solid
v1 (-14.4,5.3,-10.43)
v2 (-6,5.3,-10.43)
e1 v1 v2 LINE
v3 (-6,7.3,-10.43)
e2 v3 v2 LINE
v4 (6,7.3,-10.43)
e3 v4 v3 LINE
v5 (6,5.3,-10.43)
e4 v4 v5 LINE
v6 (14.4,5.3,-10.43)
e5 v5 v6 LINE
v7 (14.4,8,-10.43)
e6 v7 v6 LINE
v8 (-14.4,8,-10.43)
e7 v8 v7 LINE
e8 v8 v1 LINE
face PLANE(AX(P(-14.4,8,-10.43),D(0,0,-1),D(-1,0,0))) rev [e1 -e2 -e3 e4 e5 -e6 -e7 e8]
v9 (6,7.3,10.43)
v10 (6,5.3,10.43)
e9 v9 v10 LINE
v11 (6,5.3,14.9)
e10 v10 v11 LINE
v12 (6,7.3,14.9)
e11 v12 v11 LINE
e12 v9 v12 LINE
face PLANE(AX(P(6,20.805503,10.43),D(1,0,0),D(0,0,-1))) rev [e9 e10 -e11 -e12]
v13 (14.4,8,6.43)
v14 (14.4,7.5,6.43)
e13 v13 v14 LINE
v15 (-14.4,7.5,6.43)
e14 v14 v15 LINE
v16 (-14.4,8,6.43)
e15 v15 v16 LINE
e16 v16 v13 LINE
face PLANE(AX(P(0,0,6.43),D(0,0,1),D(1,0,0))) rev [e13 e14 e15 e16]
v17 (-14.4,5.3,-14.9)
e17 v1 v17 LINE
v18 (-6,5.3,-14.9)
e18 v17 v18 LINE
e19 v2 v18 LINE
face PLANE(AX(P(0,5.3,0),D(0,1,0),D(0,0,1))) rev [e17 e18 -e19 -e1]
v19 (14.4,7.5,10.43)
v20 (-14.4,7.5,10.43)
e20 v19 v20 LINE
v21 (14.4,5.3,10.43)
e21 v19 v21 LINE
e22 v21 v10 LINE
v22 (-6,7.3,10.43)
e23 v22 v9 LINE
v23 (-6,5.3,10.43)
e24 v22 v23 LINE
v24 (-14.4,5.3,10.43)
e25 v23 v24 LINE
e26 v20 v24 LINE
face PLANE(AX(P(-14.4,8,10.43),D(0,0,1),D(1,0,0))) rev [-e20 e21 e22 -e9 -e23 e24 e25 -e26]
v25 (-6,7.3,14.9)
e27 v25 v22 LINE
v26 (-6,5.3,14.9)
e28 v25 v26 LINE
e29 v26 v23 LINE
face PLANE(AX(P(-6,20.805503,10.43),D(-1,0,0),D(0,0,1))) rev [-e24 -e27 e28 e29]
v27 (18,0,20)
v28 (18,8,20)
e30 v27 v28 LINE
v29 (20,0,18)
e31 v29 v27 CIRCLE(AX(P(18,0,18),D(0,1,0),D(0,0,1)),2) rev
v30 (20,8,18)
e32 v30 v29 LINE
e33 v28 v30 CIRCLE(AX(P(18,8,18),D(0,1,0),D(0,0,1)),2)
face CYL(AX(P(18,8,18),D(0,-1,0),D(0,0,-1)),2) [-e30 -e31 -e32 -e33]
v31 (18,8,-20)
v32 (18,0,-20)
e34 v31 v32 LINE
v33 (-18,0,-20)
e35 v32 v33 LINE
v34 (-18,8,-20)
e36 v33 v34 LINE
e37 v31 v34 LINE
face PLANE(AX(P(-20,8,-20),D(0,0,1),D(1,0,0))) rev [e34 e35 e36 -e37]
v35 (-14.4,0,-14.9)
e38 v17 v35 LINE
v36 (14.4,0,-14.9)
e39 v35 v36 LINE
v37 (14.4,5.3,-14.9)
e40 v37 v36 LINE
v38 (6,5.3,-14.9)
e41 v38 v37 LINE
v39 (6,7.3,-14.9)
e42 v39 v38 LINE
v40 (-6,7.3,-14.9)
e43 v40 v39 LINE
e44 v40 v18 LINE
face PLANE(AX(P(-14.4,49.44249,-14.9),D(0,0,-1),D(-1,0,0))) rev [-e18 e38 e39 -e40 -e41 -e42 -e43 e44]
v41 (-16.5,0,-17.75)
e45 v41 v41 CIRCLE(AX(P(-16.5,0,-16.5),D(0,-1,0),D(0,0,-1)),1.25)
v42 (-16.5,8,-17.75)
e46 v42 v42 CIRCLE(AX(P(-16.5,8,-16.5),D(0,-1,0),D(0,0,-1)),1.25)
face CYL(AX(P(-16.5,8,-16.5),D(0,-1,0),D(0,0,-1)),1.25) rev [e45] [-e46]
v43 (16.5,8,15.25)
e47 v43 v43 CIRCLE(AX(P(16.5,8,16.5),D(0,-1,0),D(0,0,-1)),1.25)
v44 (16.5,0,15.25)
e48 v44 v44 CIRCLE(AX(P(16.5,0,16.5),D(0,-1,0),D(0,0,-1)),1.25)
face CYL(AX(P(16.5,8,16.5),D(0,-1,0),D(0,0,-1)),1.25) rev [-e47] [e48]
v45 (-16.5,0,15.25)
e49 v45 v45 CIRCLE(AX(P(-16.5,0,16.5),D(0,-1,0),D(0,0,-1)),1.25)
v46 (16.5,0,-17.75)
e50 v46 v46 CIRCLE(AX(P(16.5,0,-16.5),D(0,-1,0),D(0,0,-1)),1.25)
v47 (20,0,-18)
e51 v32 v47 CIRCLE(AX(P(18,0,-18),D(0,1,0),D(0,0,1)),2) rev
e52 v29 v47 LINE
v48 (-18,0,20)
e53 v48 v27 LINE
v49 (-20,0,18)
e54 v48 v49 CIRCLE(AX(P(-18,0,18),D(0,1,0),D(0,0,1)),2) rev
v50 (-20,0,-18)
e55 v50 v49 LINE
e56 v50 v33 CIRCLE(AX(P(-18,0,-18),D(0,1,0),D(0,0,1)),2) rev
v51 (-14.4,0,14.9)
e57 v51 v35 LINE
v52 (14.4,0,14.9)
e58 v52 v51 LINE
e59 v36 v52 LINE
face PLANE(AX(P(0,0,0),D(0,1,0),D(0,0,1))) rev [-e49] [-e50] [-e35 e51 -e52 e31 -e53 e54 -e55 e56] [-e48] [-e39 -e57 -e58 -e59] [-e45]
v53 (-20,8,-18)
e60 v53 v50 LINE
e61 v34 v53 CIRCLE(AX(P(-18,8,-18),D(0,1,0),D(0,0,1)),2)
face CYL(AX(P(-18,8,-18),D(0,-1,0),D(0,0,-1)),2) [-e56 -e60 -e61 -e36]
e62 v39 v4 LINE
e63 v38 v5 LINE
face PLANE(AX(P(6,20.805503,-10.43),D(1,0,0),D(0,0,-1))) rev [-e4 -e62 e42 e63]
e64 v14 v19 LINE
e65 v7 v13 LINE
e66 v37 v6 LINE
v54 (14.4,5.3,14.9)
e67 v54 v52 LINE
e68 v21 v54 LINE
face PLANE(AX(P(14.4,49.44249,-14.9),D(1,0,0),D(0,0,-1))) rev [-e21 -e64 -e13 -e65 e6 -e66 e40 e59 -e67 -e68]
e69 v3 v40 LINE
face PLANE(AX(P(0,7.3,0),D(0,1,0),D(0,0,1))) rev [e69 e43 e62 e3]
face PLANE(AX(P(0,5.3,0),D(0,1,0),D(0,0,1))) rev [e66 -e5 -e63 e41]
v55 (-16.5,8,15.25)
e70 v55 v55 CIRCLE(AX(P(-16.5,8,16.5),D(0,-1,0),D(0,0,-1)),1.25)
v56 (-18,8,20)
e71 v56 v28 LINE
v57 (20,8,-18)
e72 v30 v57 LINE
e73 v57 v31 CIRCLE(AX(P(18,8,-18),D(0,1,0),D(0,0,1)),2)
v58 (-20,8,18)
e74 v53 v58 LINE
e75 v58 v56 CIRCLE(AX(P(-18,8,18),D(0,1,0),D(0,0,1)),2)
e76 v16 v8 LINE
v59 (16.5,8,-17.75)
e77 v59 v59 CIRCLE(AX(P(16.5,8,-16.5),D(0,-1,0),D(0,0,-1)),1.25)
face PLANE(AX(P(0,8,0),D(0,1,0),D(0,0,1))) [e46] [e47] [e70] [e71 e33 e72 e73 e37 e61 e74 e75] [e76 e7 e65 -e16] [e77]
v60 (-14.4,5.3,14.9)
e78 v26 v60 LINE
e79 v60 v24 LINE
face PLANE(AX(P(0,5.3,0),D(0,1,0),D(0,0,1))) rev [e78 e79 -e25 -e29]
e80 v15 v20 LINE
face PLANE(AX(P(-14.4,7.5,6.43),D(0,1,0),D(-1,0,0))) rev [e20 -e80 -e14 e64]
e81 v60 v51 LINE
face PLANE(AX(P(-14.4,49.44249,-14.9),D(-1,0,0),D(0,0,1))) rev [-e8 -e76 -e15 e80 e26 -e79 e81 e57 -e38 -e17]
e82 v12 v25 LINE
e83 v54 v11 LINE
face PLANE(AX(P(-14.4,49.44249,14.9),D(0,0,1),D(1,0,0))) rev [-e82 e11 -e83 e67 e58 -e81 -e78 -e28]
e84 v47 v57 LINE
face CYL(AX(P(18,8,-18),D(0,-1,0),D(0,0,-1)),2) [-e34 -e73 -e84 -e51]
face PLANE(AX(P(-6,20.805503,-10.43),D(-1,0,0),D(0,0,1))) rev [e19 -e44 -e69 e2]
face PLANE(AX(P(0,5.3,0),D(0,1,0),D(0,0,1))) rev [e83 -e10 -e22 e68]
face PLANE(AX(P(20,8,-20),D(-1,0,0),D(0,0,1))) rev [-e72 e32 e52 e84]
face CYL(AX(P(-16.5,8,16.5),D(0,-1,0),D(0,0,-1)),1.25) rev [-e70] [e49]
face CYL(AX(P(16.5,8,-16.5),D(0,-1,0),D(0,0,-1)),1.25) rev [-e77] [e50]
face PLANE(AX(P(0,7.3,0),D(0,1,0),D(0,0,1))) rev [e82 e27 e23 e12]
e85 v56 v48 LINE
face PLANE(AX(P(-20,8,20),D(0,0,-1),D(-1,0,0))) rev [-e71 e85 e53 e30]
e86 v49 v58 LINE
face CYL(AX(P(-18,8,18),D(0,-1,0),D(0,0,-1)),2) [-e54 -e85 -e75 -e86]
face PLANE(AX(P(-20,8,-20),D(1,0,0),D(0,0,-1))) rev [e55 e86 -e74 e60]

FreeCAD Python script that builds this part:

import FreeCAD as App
import Part
import Sketcher
from FreeCAD import Vector
Q = App.Units.Quantity


def edges_at(feature, points):
    """Names of the edges that pass closest to the given points."""
    edges = feature.Shape.Edges
    near = lambda p: min(range(len(edges)), key=lambda i: edges[i].distToShape(Part.Vertex(*p))[0])
    return sorted({f"Edge{near(p) + 1}" for p in points})

doc = App.newDocument("Part")
body = doc.addObject("PartDesign::Body", "Body")

sketch1 = doc.addObject("Sketcher::SketchObject", "Sketch")
body.addObject(sketch1)
sketch1.AttachmentSupport = (doc.XZ_Plane, [""])
sketch1.MapMode = "FlatFace"
sketch1.addGeometry(Part.LineSegment(Vector(-20, -20, 0), Vector(-20, 20, 0)), False)
sketch1.addGeometry(Part.LineSegment(Vector(-20, 20, 0), Vector(20, 20, 0)), False)
sketch1.addGeometry(Part.LineSegment(Vector(20, 20, 0), Vector(20, -20, 0)), False)
sketch1.addGeometry(Part.LineSegment(Vector(20, -20, 0), Vector(-20, -20, 0)), False)
sketch1.addConstraint(Sketcher.Constraint("Coincident", 0, 2, 1, 1))
sketch1.addConstraint(Sketcher.Constraint("Coincident", 1, 2, 2, 1))
sketch1.addConstraint(Sketcher.Constraint("Coincident", 2, 2, 3, 1))
sketch1.addConstraint(Sketcher.Constraint("Coincident", 3, 2, 0, 1))
sketch1.addConstraint(Sketcher.Constraint("Vertical", 0))
sketch1.addConstraint(Sketcher.Constraint("Horizontal", 1))
sketch1.addConstraint(Sketcher.Constraint("Vertical", 2))
sketch1.addConstraint(Sketcher.Constraint("Horizontal", 3))
sketch1.addConstraint(Sketcher.Constraint("Symmetric", 0, 2, 2, 2, -1, 1))
sketch1.addConstraint(Sketcher.Constraint("Equal", 3, 0))
sketch1.addConstraint(Sketcher.Constraint("DistanceX", 1, 1, 1, 2, Q("40 mm")))
pad1 = doc.addObject("PartDesign::Pad", "Pad")
body.addObject(pad1)
pad1.Profile = sketch1
pad1.Length = 8
pad1.Reversed = True

sketch2 = doc.addObject("Sketcher::SketchObject", "Sketch001")
body.addObject(sketch2)
sketch2.AttachmentSupport = (doc.XZ_Plane, [""])
sketch2.MapMode = "FlatFace"
sketch2.addGeometry(Part.LineSegment(Vector(-14.4, 14.9, 0), Vector(-14.4, -14.9, 0)), False)
sketch2.addGeometry(Part.LineSegment(Vector(-14.4, -14.9, 0), Vector(14.4, -14.9, 0)), False)
sketch2.addGeometry(Part.LineSegment(Vector(14.4, -14.9, 0), Vector(14.4, 14.9, 0)), False)
sketch2.addGeometry(Part.LineSegment(Vector(14.4, 14.9, 0), Vector(-14.4, 14.9, 0)), False)
sketch2.addConstraint(Sketcher.Constraint("Coincident", 0, 2, 1, 1))
sketch2.addConstraint(Sketcher.Constraint("Coincident", 1, 2, 2, 1))
sketch2.addConstraint(Sketcher.Constraint("Coincident", 2, 2, 3, 1))
sketch2.addConstraint(Sketcher.Constraint("Coincident", 3, 2, 0, 1))
sketch2.addConstraint(Sketcher.Constraint("Vertical", 0))
sketch2.addConstraint(Sketcher.Constraint("Horizontal", 1))
sketch2.addConstraint(Sketcher.Constraint("Vertical", 2))
sketch2.addConstraint(Sketcher.Constraint("Horizontal", 3))
sketch2.addConstraint(Sketcher.Constraint("Symmetric", 0, 2, 2, 2, -1, 1))
sketch2.addConstraint(Sketcher.Constraint("DistanceX", 1, 1, 1, 2, Q("28.8 mm")))
sketch2.addConstraint(Sketcher.Constraint("DistanceY", 0, 2, 0, 1, Q("29.8 mm")))
pocket1 = doc.addObject("PartDesign::Pocket", "Pocket")
body.addObject(pocket1)
pocket1.Profile = sketch2
pocket1.Length = 5.3

sketch3 = doc.addObject("Sketcher::SketchObject", "Sketch002")
body.addObject(sketch3)
sketch3.AttachmentSupport = (doc.XZ_Plane, [""])
sketch3.MapMode = "FlatFace"
sketch3.AttachmentOffset = App.Placement(Vector(0, 0, -5.3), App.Rotation())
sketch3.addGeometry(Part.LineSegment(Vector(-14.4, 10.43, 0), Vector(-14.4, -10.43, 0)), False)
sketch3.addGeometry(Part.LineSegment(Vector(-14.4, -10.43, 0), Vector(14.4, -10.43, 0)), False)
sketch3.addGeometry(Part.LineSegment(Vector(14.4, -10.43, 0), Vector(14.4, 10.43, 0)), False)
sketch3.addGeometry(Part.LineSegment(Vector(14.4, 10.43, 0), Vector(-14.4, 10.43, 0)), False)
sketch3.addConstraint(Sketcher.Constraint("Coincident", 0, 2, 1, 1))
sketch3.addConstraint(Sketcher.Constraint("Coincident", 1, 2, 2, 1))
sketch3.addConstraint(Sketcher.Constraint("Coincident", 2, 2, 3, 1))
sketch3.addConstraint(Sketcher.Constraint("Coincident", 3, 2, 0, 1))
sketch3.addConstraint(Sketcher.Constraint("Vertical", 0))
sketch3.addConstraint(Sketcher.Constraint("Horizontal", 1))
sketch3.addConstraint(Sketcher.Constraint("Vertical", 2))
sketch3.addConstraint(Sketcher.Constraint("Horizontal", 3))
sketch3.addConstraint(Sketcher.Constraint("Symmetric", 0, 2, 2, 2, -1, 1))
sketch3.addConstraint(Sketcher.Constraint("DistanceX", 1, 1, 1, 2, Q("28.8 mm")))
sketch3.addConstraint(Sketcher.Constraint("DistanceY", 0, 2, 0, 1, Q("20.86 mm")))
pocket2 = doc.addObject("PartDesign::Pocket", "Pocket001")
body.addObject(pocket2)
pocket2.Profile = sketch3
pocket2.Type = "ThroughAll"

sketch4 = doc.addObject("Sketcher::SketchObject", "Sketch003")
body.addObject(sketch4)
sketch4.AttachmentSupport = (doc.XZ_Plane, [""])
sketch4.MapMode = "FlatFace"
sketch4.AttachmentOffset = App.Placement(Vector(0, 0, -5.3), App.Rotation())
sketch4.addGeometry(Part.LineSegment(Vector(-6, 14.9, 0), Vector(-6, 10.43, 0)), False)
sketch4.addGeometry(Part.LineSegment(Vector(-6, 10.43, 0), Vector(6, 10.43, 0)), False)
sketch4.addGeometry(Part.LineSegment(Vector(6, 10.43, 0), Vector(6, 14.9, 0)), False)
sketch4.addGeometry(Part.LineSegment(Vector(6, 14.9, 0), Vector(-6, 14.9, 0)), False)
sketch4.addGeometry(Part.LineSegment(Vector(-6, -10.43, 0), Vector(-6, -14.9, 0)), False)
sketch4.addGeometry(Part.LineSegment(Vector(-6, -14.9, 0), Vector(6, -14.9, 0)), False)
sketch4.addGeometry(Part.LineSegment(Vector(6, -14.9, 0), Vector(6, -10.43, 0)), False)
sketch4.addGeometry(Part.LineSegment(Vector(6, -10.43, 0), Vector(-6, -10.43, 0)), False)
sketch4.addConstraint(Sketcher.Constraint("Coincident", 0, 2, 1, 1))
sketch4.addConstraint(Sketcher.Constraint("Coincident", 1, 2, 2, 1))
sketch4.addConstraint(Sketcher.Constraint("Coincident", 2, 2, 3, 1))
sketch4.addConstraint(Sketcher.Constraint("Coincident", 3, 2, 0, 1))
sketch4.addConstraint(Sketcher.Constraint("Coincident", 4, 2, 5, 1))
sketch4.addConstraint(Sketcher.Constraint("Coincident", 5, 2, 6, 1))
sketch4.addConstraint(Sketcher.Constraint("Coincident", 6, 2, 7, 1))
sketch4.addConstraint(Sketcher.Constraint("Coincident", 7, 2, 4, 1))
sketch4.addConstraint(Sketcher.Constraint("Vertical", 0))
sketch4.addConstraint(Sketcher.Constraint("Horizontal", 1))
sketch4.addConstraint(Sketcher.Constraint("Vertical", 2))
sketch4.addConstraint(Sketcher.Constraint("Horizontal", 3))
sketch4.addConstraint(Sketcher.Constraint("Vertical", 4))
sketch4.addConstraint(Sketcher.Constraint("Horizontal", 5))
sketch4.addConstraint(Sketcher.Constraint("Vertical", 6))
sketch4.addConstraint(Sketcher.Constraint("Horizontal", 7))
sketch4.addConstraint(Sketcher.Constraint("Symmetric", 2, 2, 4, 2, -1, 1))
sketch4.addConstraint(Sketcher.Constraint("Symmetric", 0, 2, 6, 2, -1, 1))
sketch4.addConstraint(Sketcher.Constraint("Vertical", 3, 2, 4, 2))
sketch4.addConstraint(Sketcher.Constraint("DistanceX", 1, 1, 1, 2, Q("12 mm")))
sketch4.addConstraint(Sketcher.Constraint("DistanceY", 0, 2, 0, 1, Q("4.47 mm")))
sketch4.addConstraint(Sketcher.Constraint("DistanceY", -1, 1, 2, 2, Q("14.9 mm")))
pocket3 = doc.addObject("PartDesign::Pocket", "Pocket002")
body.addObject(pocket3)
pocket3.Profile = sketch4
pocket3.Length = 2

sketch5 = doc.addObject("Sketcher::SketchObject", "Sketch004")
body.addObject(sketch5)
sketch5.AttachmentSupport = (doc.XY_Plane, [""])
sketch5.MapMode = "FlatFace"
sketch5.AttachmentOffset = App.Placement(Vector(0, 0, 10.43), App.Rotation())
sketch5.addGeometry(Part.LineSegment(Vector(14.4, 8, 0), Vector(14.4, 7.5, 0)), False)
sketch5.addGeometry(Part.LineSegment(Vector(14.4, 7.5, 0), Vector(-14.4, 7.5, 0)), False)
sketch5.addGeometry(Part.LineSegment(Vector(-14.4, 7.5, 0), Vector(-14.4, 8, 0)), False)
sketch5.addGeometry(Part.LineSegment(Vector(-14.4, 8, 0), Vector(14.4, 8, 0)), False)
sketch5.addConstraint(Sketcher.Constraint("Coincident", 0, 2, 1, 1))
sketch5.addConstraint(Sketcher.Constraint("Coincident", 1, 2, 2, 1))
sketch5.addConstraint(Sketcher.Constraint("Coincident", 2, 2, 3, 1))
sketch5.addConstraint(Sketcher.Constraint("Coincident", 3, 2, 0, 1))
sketch5.addConstraint(Sketcher.Constraint("Vertical", 0))
sketch5.addConstraint(Sketcher.Constraint("Horizontal", 1))
sketch5.addConstraint(Sketcher.Constraint("Vertical", 2))
sketch5.addConstraint(Sketcher.Constraint("Horizontal", 3))
sketch5.addConstraint(Sketcher.Constraint("DistanceX", 1, 2, 1, 1, Q("28.8 mm")))
sketch5.addConstraint(Sketcher.Constraint("DistanceY", 0, 2, 0, 1, Q("0.5 mm")))
sketch5.addConstraint(Sketcher.Constraint("DistanceY", -1, 1, 2, 2, Q("8 mm")))
sketch5.addConstraint(Sketcher.Constraint("DistanceX", -1, 1, 0, 2, Q("14.4 mm")))
pad2 = doc.addObject("PartDesign::Pad", "Pad001")
body.addObject(pad2)
pad2.Profile = sketch5
pad2.Length = 4
pad2.Reversed = True

sketch6 = doc.addObject("Sketcher::SketchObject", "Sketch005")
body.addObject(sketch6)
sketch6.AttachmentSupport = (doc.XZ_Plane, [""])
sketch6.MapMode = "FlatFace"
sketch6.addGeometry(Part.Circle(Vector(-16.5, 16.5, 0), Vector(0, 0, 1), 1.25), False)
sketch6.addGeometry(Part.Circle(Vector(16.5, 16.5, 0), Vector(0, 0, 1), 1.25), False)
sketch6.addGeometry(Part.Circle(Vector(16.5, -16.5, 0), Vector(0, 0, 1), 1.25), False)
sketch6.addGeometry(Part.Circle(Vector(-16.5, -16.5, 0), Vector(0, 0, 1), 1.25), False)
sketch6.addConstraint(Sketcher.Constraint("Equal", 0, 1))
sketch6.addConstraint(Sketcher.Constraint("Equal", 1, 2))
sketch6.addConstraint(Sketcher.Constraint("Equal", 2, 3))
sketch6.addConstraint(Sketcher.Constraint("Symmetric", 0, 3, 2, 3, -1, 1))
sketch6.addConstraint(Sketcher.Constraint("Symmetric", 1, 3, 3, 3, -1, 1))
sketch6.addConstraint(Sketcher.Constraint("Symmetric", 0, 3, 1, 3, -2))
sketch6.addConstraint(Sketcher.Constraint("Diameter", 0, Q("2.5 mm")))
sketch6.addConstraint(Sketcher.Constraint("DistanceX", 0, 3, 1, 3, Q("33 mm")))
sketch6.addConstraint(Sketcher.Constraint("DistanceY", 2, 3, 1, 3, Q("33 mm")))
pocket4 = doc.addObject("PartDesign::Pocket", "Pocket003")
body.addObject(pocket4)
pocket4.Profile = sketch6
pocket4.Type = "ThroughAll"
doc.recompute()

fillet = doc.addObject("PartDesign::Fillet", "Fillet")
body.addObject(fillet)
fillet.Base = (pocket4, edges_at(pocket4, [
    (20, 4, 20),
    (-20, 4, 20),
    (-20, 4, -20),
    (20, 4, -20),
]))
fillet.Radius = 2

doc.recompute()
